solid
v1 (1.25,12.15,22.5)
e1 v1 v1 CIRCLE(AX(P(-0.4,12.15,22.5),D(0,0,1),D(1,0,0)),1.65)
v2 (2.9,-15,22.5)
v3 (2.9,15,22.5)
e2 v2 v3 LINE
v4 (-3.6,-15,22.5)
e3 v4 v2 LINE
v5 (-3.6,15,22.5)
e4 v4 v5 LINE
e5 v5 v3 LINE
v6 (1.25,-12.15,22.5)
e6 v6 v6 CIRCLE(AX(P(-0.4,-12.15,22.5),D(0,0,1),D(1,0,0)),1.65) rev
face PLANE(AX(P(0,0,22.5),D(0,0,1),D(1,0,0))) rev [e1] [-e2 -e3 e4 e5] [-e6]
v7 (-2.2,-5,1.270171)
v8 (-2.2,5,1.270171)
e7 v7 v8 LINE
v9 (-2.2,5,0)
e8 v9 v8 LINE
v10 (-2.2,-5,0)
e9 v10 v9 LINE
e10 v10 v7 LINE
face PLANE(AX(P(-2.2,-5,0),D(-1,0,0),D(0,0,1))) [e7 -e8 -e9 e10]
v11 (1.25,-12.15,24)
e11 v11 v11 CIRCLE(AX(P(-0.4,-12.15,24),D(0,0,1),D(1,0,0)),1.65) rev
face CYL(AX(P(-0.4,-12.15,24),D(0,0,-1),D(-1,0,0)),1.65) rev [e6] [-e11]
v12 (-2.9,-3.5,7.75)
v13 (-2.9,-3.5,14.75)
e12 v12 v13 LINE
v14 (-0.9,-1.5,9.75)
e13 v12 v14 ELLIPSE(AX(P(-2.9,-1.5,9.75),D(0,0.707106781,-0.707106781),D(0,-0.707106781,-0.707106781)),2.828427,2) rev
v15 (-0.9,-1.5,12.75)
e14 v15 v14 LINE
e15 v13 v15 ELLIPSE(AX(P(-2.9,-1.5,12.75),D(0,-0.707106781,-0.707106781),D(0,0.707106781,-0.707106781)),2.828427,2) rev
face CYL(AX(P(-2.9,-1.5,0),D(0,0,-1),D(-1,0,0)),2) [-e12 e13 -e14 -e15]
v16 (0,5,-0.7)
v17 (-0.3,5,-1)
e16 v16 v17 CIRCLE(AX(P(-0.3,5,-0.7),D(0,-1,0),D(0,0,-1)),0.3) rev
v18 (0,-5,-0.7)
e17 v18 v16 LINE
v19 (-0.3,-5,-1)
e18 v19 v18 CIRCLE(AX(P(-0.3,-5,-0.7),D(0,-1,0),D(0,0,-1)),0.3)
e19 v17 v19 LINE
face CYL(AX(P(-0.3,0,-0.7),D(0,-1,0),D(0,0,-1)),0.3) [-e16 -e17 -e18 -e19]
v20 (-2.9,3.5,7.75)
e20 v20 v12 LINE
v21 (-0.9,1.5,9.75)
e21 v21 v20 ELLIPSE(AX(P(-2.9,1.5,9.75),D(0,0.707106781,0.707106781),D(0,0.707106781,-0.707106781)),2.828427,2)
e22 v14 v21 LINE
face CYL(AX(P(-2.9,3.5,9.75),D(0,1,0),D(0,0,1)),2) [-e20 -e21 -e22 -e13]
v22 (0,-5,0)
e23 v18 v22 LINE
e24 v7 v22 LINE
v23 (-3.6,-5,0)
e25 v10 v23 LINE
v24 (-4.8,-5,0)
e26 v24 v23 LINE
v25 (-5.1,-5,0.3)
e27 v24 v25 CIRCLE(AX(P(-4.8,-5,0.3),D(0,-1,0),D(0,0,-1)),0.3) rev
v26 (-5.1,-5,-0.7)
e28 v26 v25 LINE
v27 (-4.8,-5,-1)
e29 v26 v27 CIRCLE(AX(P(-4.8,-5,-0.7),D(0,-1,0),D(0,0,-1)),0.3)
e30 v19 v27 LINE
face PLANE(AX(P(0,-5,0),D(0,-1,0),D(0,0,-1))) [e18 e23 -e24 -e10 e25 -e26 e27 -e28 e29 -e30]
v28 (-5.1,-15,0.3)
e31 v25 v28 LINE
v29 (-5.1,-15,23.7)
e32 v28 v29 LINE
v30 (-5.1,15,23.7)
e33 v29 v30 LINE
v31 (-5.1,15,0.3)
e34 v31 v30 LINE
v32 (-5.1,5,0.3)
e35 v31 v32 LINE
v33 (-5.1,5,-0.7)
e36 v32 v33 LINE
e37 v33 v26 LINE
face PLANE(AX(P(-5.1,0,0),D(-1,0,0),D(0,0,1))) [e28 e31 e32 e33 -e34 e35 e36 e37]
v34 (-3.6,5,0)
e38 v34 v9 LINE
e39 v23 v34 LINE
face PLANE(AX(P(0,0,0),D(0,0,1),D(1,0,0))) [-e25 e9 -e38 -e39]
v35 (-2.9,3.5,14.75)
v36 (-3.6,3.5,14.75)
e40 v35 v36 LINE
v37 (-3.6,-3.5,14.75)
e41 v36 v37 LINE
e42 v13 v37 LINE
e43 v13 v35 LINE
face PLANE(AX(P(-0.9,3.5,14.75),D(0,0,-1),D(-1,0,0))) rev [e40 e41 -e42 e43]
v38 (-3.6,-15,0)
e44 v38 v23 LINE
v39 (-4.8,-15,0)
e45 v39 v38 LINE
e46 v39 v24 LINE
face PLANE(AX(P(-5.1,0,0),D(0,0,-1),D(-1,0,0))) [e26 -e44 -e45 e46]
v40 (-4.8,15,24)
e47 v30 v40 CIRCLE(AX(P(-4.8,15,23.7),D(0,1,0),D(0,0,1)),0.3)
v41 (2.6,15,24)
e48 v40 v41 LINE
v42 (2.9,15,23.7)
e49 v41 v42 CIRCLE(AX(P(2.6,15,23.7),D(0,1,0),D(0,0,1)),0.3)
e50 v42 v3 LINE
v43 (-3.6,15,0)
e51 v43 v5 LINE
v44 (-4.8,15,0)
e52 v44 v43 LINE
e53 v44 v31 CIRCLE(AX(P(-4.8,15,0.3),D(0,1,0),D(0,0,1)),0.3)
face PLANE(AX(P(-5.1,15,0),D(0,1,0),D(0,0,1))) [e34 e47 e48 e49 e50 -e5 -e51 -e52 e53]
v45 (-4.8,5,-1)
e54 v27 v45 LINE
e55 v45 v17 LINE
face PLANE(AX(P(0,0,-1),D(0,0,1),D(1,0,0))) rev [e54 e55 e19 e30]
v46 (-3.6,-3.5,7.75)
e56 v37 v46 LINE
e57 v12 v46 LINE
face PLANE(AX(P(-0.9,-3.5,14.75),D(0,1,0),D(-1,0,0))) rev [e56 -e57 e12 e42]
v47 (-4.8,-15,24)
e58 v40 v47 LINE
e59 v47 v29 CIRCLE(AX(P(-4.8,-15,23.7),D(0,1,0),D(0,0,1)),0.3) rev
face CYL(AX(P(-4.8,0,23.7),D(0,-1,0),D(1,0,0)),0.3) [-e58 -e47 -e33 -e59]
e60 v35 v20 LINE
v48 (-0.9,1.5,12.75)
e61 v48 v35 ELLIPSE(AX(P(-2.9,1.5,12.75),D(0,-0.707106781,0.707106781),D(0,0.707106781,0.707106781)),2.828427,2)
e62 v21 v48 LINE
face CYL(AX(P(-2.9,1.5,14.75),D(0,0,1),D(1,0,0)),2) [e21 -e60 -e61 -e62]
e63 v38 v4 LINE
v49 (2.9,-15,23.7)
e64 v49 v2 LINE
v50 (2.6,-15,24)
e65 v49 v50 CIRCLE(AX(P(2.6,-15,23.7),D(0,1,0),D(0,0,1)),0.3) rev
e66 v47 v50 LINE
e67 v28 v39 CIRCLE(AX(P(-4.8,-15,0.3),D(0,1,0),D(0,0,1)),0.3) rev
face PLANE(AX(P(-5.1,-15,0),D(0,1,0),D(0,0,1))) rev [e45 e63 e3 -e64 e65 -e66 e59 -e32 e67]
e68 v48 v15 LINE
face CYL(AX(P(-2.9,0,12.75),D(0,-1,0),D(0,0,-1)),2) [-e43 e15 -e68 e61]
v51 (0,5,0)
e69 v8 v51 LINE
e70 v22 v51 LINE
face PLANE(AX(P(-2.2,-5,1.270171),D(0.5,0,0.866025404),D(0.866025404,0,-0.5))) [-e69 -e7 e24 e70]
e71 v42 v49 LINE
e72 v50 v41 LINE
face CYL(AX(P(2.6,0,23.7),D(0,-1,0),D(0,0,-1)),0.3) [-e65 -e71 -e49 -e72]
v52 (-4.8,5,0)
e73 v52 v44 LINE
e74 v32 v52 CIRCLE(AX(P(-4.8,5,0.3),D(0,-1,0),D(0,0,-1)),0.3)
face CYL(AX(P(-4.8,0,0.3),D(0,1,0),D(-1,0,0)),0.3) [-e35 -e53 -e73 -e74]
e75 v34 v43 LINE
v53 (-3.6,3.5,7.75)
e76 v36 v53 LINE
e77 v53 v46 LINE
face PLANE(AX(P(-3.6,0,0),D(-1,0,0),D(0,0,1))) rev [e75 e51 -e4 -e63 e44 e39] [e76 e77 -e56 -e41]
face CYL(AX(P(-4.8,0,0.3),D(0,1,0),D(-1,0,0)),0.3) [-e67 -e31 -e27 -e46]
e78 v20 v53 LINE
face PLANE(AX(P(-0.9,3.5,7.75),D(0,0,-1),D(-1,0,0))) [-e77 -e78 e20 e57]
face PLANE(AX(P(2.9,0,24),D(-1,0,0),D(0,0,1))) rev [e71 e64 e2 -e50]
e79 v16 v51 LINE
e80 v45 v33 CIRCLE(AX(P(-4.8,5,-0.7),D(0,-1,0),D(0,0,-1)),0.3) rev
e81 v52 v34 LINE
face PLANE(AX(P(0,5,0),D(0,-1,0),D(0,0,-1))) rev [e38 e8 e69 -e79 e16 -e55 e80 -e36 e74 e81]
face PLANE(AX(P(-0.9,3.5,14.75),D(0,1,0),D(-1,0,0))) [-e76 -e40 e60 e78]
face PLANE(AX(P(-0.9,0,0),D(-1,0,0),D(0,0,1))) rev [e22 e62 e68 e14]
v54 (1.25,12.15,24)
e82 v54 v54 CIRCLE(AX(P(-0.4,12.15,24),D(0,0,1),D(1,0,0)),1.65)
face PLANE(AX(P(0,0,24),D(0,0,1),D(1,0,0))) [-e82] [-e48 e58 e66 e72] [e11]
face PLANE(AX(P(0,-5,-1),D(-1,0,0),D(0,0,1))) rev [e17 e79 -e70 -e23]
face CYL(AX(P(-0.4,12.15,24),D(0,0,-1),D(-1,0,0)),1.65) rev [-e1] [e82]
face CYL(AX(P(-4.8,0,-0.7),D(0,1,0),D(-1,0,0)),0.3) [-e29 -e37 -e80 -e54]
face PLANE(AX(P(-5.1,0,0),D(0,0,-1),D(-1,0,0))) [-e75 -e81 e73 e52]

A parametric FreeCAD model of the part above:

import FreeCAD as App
import Part
import Sketcher

V = App.Vector
Q = App.Units.Quantity


def edges_at(feature, points):
    """Names of the edges that pass closest to the given points."""
    edges = feature.Shape.Edges
    near = lambda p: min(range(len(edges)), key=lambda i: edges[i].distToShape(Part.Vertex(*p))[0])
    return sorted({f"Edge{near(p) + 1}" for p in points})

doc = App.newDocument("Part")
body = doc.addObject("PartDesign::Body", "Body")

# Sketch on XZ plane
sketch1 = body.newObject("Sketcher::SketchObject", "Sketch")
sketch1.AttachmentSupport = (doc.getObject("XZ_Plane"), [""])
sketch1.MapMode = "FlatFace"
sketch1.addGeometry(Part.LineSegment(V(0, 0, 0), V(-2.2, 0, 0)), False)
sketch1.addGeometry(Part.LineSegment(V(-2.2, 0, 0), V(-2.2, 1.270171, 0)), False)
sketch1.addGeometry(Part.LineSegment(V(-2.2, 1.270171, 0), V(0, 0, 0)), False)
sketch1.addConstraint(Sketcher.Constraint("Coincident", 0, 2, 1, 1))
sketch1.addConstraint(Sketcher.Constraint("Coincident", 1, 2, 2, 1))
sketch1.addConstraint(Sketcher.Constraint("Coincident", 2, 2, 0, 1))
sketch1.addConstraint(Sketcher.Constraint("Horizontal", 0))
sketch1.addConstraint(Sketcher.Constraint("Vertical", 1))
sketch1.addConstraint(Sketcher.Constraint("Coincident", 2, 2, -1, 1))
sketch1.addConstraint(Sketcher.Constraint("Angle", 2, Q("-30 deg")))
sketch1.addConstraint(Sketcher.Constraint("DistanceX", 0, 2, 0, 1, Q("2.2 mm")))
pad1 = body.newObject("PartDesign::Pad", "Pad")
pad1.Profile = sketch1
pad1.Type = "TwoLengths"
pad1.Length = 5
pad1.Length2 = 5
pad1.Reversed = True

# Sketch on XY plane
sketch2 = body.newObject("Sketcher::SketchObject", "Sketch001")
sketch2.AttachmentSupport = (doc.getObject("XY_Plane"), [""])
sketch2.MapMode = "FlatFace"
sketch2.addGeometry(Part.LineSegment(V(0, 5, 0), V(0, -5, 0)), False)
sketch2.addGeometry(Part.LineSegment(V(0, -5, 0), V(-3.6, -5, 0)), False)
sketch2.addGeometry(Part.LineSegment(V(-3.6, -5, 0), V(-3.6, 5, 0)), False)
sketch2.addGeometry(Part.LineSegment(V(-3.6, 5, 0), V(0, 5, 0)), False)
sketch2.addConstraint(Sketcher.Constraint("Coincident", 0, 2, 1, 1))
sketch2.addConstraint(Sketcher.Constraint("Coincident", 1, 2, 2, 1))
sketch2.addConstraint(Sketcher.Constraint("Coincident", 2, 2, 3, 1))
sketch2.addConstraint(Sketcher.Constraint("Coincident", 3, 2, 0, 1))
sketch2.addConstraint(Sketcher.Constraint("Vertical", 0))
sketch2.addConstraint(Sketcher.Constraint("Horizontal", 1))
sketch2.addConstraint(Sketcher.Constraint("Vertical", 2))
sketch2.addConstraint(Sketcher.Constraint("Horizontal", 3))
sketch2.addConstraint(Sketcher.Constraint("Symmetric", 0, 2, 3, 2, -1, 1))
sketch2.addConstraint(Sketcher.Constraint("DistanceY", 0, 2, 0, 1, Q("10 mm")))
sketch2.addConstraint(Sketcher.Constraint("DistanceX", 1, 2, 1, 1, Q("3.6 mm")))
pad2 = body.newObject("PartDesign::Pad", "Pad001")
pad2.Profile = sketch2
pad2.Length = 1
pad2.Reversed = True

# Sketch on YZ plane
sketch3 = body.newObject("Sketcher::SketchObject", "Sketch002")
sketch3.AttachmentSupport = (doc.getObject("YZ_Plane"), [""])
sketch3.MapMode = "FlatFace"
sketch3.AttachmentOffset = App.Placement(V(0, 0, -3.6), App.Rotation())
sketch3.addGeometry(Part.LineSegment(V(-15, 0, 0), V(-15, 22.5, 0)), False)
sketch3.addGeometry(Part.LineSegment(V(-15, 22.5, 0), V(15, 22.5, 0)), False)
sketch3.addGeometry(Part.LineSegment(V(15, 22.5, 0), V(15, 0, 0)), False)
sketch3.addGeometry(Part.LineSegment(V(15, 0, 0), V(5, 0, 0)), False)
sketch3.addGeometry(Part.LineSegment(V(5, 0, 0), V(5, -1, 0)), False)
sketch3.addGeometry(Part.LineSegment(V(5, -1, 0), V(-5, -1, 0)), False)
sketch3.addGeometry(Part.LineSegment(V(-5, -1, 0), V(-5, 0, 0)), False)
sketch3.addGeometry(Part.LineSegment(V(-5, 0, 0), V(-15, 0, 0)), False)
sketch3.addConstraint(Sketcher.Constraint("Coincident", 0, 2, 1, 1))
sketch3.addConstraint(Sketcher.Constraint("Coincident", 1, 2, 2, 1))
sketch3.addConstraint(Sketcher.Constraint("Coincident", 2, 2, 3, 1))
sketch3.addConstraint(Sketcher.Constraint("Coincident", 3, 2, 4, 1))
sketch3.addConstraint(Sketcher.Constraint("Coincident", 4, 2, 5, 1))
sketch3.addConstraint(Sketcher.Constraint("Coincident", 5, 2, 6, 1))
sketch3.addConstraint(Sketcher.Constraint("Coincident", 6, 2, 7, 1))
sketch3.addConstraint(Sketcher.Constraint("Coincident", 7, 2, 0, 1))
sketch3.addConstraint(Sketcher.Constraint("Vertical", 0))
sketch3.addConstraint(Sketcher.Constraint("Horizontal", 1))
sketch3.addConstraint(Sketcher.Constraint("Vertical", 2))
sketch3.addConstraint(Sketcher.Constraint("Horizontal", 3))
sketch3.addConstraint(Sketcher.Constraint("Vertical", 4))
sketch3.addConstraint(Sketcher.Constraint("Horizontal", 5))
sketch3.addConstraint(Sketcher.Constraint("Vertical", 6))
sketch3.addConstraint(Sketcher.Constraint("Horizontal", 7))
sketch3.addConstraint(Sketcher.Constraint("Symmetric", 3, 2, 6, 2, -1, 1))
sketch3.addConstraint(Sketcher.Constraint("Symmetric", 2, 2, 7, 2, -2))
sketch3.addConstraint(Sketcher.Constraint("Equal", 3, 5))
sketch3.addConstraint(Sketcher.Constraint("DistanceX", 1, 1, 1, 2, Q("30 mm")))
sketch3.addConstraint(Sketcher.Constraint("DistanceY", 4, 2, 4, 1, Q("1 mm")))
sketch3.addConstraint(Sketcher.Constraint("DistanceY", 0, 1, 0, 2, Q("22.5 mm")))
pad3 = body.newObject("PartDesign::Pad", "Pad002")
pad3.Profile = sketch3
pad3.Length = 1.5
pad3.Reversed = True

# Sketch on XY plane
sketch4 = body.newObject("Sketcher::SketchObject", "Sketch003")
sketch4.AttachmentSupport = (doc.getObject("XY_Plane"), [""])
sketch4.MapMode = "FlatFace"
sketch4.AttachmentOffset = App.Placement(V(0, 0, 22.5), App.Rotation())
sketch4.addGeometry(Part.LineSegment(V(-5.1, 15, 0), V(-5.1, -15, 0)), False)
sketch4.addGeometry(Part.LineSegment(V(-5.1, -15, 0), V(2.9, -15, 0)), False)
sketch4.addGeometry(Part.LineSegment(V(2.9, -15, 0), V(2.9, 15, 0)), False)
sketch4.addGeometry(Part.LineSegment(V(2.9, 15, 0), V(-5.1, 15, 0)), False)
sketch4.addGeometry(Part.Circle(V(-0.4, 12.15, 0), V(0, 0, 1), 1.65), False)
sketch4.addGeometry(Part.Circle(V(-0.4, -12.15, 0), V(0, 0, 1), 1.65), False)
sketch4.addConstraint(Sketcher.Constraint("Coincident", 0, 2, 1, 1))
sketch4.addConstraint(Sketcher.Constraint("Coincident", 1, 2, 2, 1))
sketch4.addConstraint(Sketcher.Constraint("Coincident", 2, 2, 3, 1))
sketch4.addConstraint(Sketcher.Constraint("Coincident", 3, 2, 0, 1))
sketch4.addConstraint(Sketcher.Constraint("Vertical", 0))
sketch4.addConstraint(Sketcher.Constraint("Horizontal", 1))
sketch4.addConstraint(Sketcher.Constraint("Vertical", 2))
sketch4.addConstraint(Sketcher.Constraint("Horizontal", 3))
sketch4.addConstraint(Sketcher.Constraint("Equal", 4, 5))
sketch4.addConstraint(Sketcher.Constraint("Symmetric", 4, 3, 5, 3, -1))
sketch4.addConstraint(Sketcher.Constraint("Diameter", 4, Q("3.3 mm")))
sketch4.addConstraint(Sketcher.Constraint("DistanceX", 1, 1, 1, 2, Q("8 mm")))
sketch4.addConstraint(Sketcher.Constraint("DistanceY", 0, 2, 0, 1, Q("30 mm")))
sketch4.addConstraint(Sketcher.Constraint("DistanceY", 0, 2, -1, 1, Q("15 mm")))
sketch4.addConstraint(Sketcher.Constraint("DistanceX", 4, 3, -1, 1, Q("0.4 mm")))
sketch4.addConstraint(Sketcher.Constraint("DistanceX", 0, 2, -1, 1, Q("5.1 mm")))
sketch4.addConstraint(Sketcher.Constraint("DistanceY", 5, 3, 4, 3, Q("24.3 mm")))
pad4 = body.newObject("PartDesign::Pad", "Pad003")
pad4.Profile = sketch4
pad4.Length = 1.5
doc.recompute()

fillet = body.newObject("PartDesign::Fillet", "Fillet")
fillet.Base = (pad4, edges_at(pad4, [
    (0, 0, -1),
    (-5.1, 10, 0),
    (-5.1, -10, 0),
    (-5.1, 0, -1),
    (2.9, 0, 24),
    (-5.1, 0, 24),
]))
fillet.Radius = 0.3

# Sketch on YZ plane
sketch5 = body.newObject("Sketcher::SketchObject", "Sketch004")
sketch5.AttachmentSupport = (doc.getObject("YZ_Plane"), [""])
sketch5.MapMode = "FlatFace"
sketch5.AttachmentOffset = App.Placement(V(0, 0, -3.6), App.Rotation())
sketch5.addGeometry(Part.LineSegment(V(3.5, 14.75, 0), V(-3.5, 14.75, 0)), False)
sketch5.addGeometry(Part.LineSegment(V(-3.5, 14.75, 0), V(-3.5, 7.75, 0)), False)
sketch5.addGeometry(Part.LineSegment(V(-3.5, 7.75, 0), V(3.5, 7.75, 0)), False)
sketch5.addGeometry(Part.LineSegment(V(3.5, 7.75, 0), V(3.5, 14.75, 0)), False)
sketch5.addConstraint(Sketcher.Constraint("Coincident", 0, 2, 1, 1))
sketch5.addConstraint(Sketcher.Constraint("Coincident", 1, 2, 2, 1))
sketch5.addConstraint(Sketcher.Constraint("Coincident", 2, 2, 3, 1))
sketch5.addConstraint(Sketcher.Constraint("Coincident", 3, 2, 0, 1))
sketch5.addConstraint(Sketcher.Constraint("Horizontal", 0))
sketch5.addConstraint(Sketcher.Constraint("Vertical", 1))
sketch5.addConstraint(Sketcher.Constraint("Horizontal", 2))
sketch5.addConstraint(Sketcher.Constraint("Vertical", 3))
sketch5.addConstraint(Sketcher.Constraint("Equal", 2, 1))
sketch5.addConstraint(Sketcher.Constraint("DistanceX", 0, 2, 0, 1, Q("7 mm")))
sketch5.addConstraint(Sketcher.Constraint("DistanceX", 0, 2, -1, 1, Q("3.5 mm")))
sketch5.addConstraint(Sketcher.Constraint("DistanceY", -1, 1, 0, 2, Q("14.75 mm")))
pad5 = body.newObject("PartDesign::Pad", "Pad004")
pad5.Profile = sketch5
pad5.Length = 2.7
doc.recompute()

fillet2 = body.newObject("PartDesign::Fillet", "Fillet001")
fillet2.Base = (pad5, edges_at(pad5, [
    (-0.9, 0, 7.75),
    (-0.9, 3.5, 11.25),
    (-0.9, -3.5, 11.25),
    (-0.9, 0, 14.75),
]))
fillet2.Radius = 2

doc.recompute()
